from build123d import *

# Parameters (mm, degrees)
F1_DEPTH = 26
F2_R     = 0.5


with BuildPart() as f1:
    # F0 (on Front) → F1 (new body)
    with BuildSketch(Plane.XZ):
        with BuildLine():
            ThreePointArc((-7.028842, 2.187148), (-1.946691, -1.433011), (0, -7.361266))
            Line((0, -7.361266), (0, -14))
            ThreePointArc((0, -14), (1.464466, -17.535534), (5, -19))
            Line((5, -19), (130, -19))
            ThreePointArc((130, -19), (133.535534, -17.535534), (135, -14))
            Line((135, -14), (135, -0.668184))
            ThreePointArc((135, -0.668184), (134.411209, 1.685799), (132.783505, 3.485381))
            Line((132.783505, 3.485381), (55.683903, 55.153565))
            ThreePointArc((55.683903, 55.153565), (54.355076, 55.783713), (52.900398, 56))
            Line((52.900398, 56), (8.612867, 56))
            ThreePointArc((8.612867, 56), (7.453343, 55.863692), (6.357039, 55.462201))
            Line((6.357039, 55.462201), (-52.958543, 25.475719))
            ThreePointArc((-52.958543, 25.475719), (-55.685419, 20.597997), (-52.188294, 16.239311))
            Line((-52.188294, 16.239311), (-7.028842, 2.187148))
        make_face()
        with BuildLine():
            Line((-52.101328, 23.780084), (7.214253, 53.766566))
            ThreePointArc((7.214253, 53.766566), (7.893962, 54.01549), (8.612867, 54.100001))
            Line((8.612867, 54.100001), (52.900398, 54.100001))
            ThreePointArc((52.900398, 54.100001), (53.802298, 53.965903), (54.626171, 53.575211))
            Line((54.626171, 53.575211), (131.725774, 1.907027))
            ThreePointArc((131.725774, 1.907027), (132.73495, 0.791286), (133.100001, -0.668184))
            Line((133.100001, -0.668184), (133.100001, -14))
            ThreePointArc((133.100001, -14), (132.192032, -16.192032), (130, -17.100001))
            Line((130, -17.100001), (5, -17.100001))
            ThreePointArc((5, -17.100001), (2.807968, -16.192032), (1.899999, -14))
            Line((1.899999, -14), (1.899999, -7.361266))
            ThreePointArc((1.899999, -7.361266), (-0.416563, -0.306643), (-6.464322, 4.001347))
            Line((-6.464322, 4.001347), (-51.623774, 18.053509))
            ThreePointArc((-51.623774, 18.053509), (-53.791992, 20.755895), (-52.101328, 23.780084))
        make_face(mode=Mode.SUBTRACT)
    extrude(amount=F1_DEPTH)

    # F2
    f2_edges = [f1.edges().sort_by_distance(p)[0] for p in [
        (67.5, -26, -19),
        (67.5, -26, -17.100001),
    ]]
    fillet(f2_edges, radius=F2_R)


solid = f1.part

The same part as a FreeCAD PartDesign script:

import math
import FreeCAD as App
import Part
import Sketcher


def edges_at(feature, points):
    """Names of the edges that pass closest to the given points."""
    edges = feature.Shape.Edges
    near = lambda p: min(range(len(edges)), key=lambda i: edges[i].distToShape(Part.Vertex(*p))[0])
    return sorted({f"Edge{near(p) + 1}" for p in points})

doc = App.newDocument("Part")
body = doc.addObject("PartDesign::Body", "Body")

sketch1 = body.newObject("Sketcher::SketchObject", "Sketch")
sketch1.AttachmentSupport = (doc.getObject("XZ_Plane"), [""])
sketch1.MapMode = "FlatFace"
sketch1.addGeometry([
    Part.ArcOfCircle(Part.Circle(App.Vector(-10, -7.361267, 0), App.Vector(0, 0, 1), 10), math.radians(0.000003), math.radians(72.715546)),
    Part.LineSegment(App.Vector(0, -7.361266, 0), App.Vector(0, -14, 0)),
    Part.ArcOfCircle(Part.Circle(App.Vector(5, -14, 0), App.Vector(0, 0, 1), 5), math.radians(179.999996), math.radians(270.000004)),
    Part.LineSegment(App.Vector(5, -19, 0), App.Vector(130, -19, 0)),
    Part.ArcOfCircle(Part.Circle(App.Vector(130, -14, 0), App.Vector(0, 0, 1), 5), math.radians(-90.000004), math.radians(0.000004)),
    Part.LineSegment(App.Vector(135, -14, 0), App.Vector(135, -0.668184, 0)),
    Part.ArcOfCircle(Part.Circle(App.Vector(130, -0.668184, 0), App.Vector(0, 0, 1), 5), math.radians(-0.000001), math.radians(56.172042)),
    Part.LineSegment(App.Vector(132.783505, 3.485381, 0), App.Vector(55.683903, 55.153565, 0)),
    Part.ArcOfCircle(Part.Circle(App.Vector(52.900396, 50.999993, 0), App.Vector(0, 0, 1), 5.000007), math.radians(56.172074), math.radians(89.999981)),
    Part.LineSegment(App.Vector(52.900398, 56, 0), App.Vector(8.612867, 56, 0)),
    Part.ArcOfCircle(Part.Circle(App.Vector(8.61287, 50.999989, 0), App.Vector(0, 0, 1), 5.000011), math.radians(90.000036), math.radians(116.818469)),
    Part.LineSegment(App.Vector(6.357039, 55.462201, 0), App.Vector(-52.958543, 25.475719, 0)),
    Part.ArcOfCircle(Part.Circle(App.Vector(-50.702715, 21.013518, 0), App.Vector(0, 0, 1), 5), math.radians(116.818495), math.radians(252.715544)),
    Part.LineSegment(App.Vector(-52.188294, 16.239311, 0), App.Vector(-7.028842, 2.187148, 0)),
    Part.ArcOfCircle(Part.Circle(App.Vector(-50.702714, 21.013518, 0), App.Vector(0, 0, 1), 3.100001), math.radians(116.818488), math.radians(252.71554)),
    Part.LineSegment(App.Vector(-52.101328, 23.780084, 0), App.Vector(7.214253, 53.766566, 0)),
    Part.ArcOfCircle(Part.Circle(App.Vector(8.61287, 50.999982, 0), App.Vector(0, 0, 1), 3.100019), math.radians(90.000062), math.radians(116.818401)),
    Part.LineSegment(App.Vector(8.612867, 54.100001, 0), App.Vector(52.900398, 54.100001, 0)),
    Part.ArcOfCircle(Part.Circle(App.Vector(52.900396, 50.999997, 0), App.Vector(0, 0, 1), 3.100004), math.radians(56.172064), math.radians(89.999971)),
    Part.LineSegment(App.Vector(54.626171, 53.575211, 0), App.Vector(131.725774, 1.907027, 0)),
    Part.ArcOfCircle(Part.Circle(App.Vector(129.999997, -0.668186, 0), App.Vector(0, 0, 1), 3.100004), math.radians(0.000028), math.radians(56.172003)),
    Part.LineSegment(App.Vector(133.100001, -0.668184, 0), App.Vector(133.100001, -14, 0)),
    Part.ArcOfCircle(Part.Circle(App.Vector(130.000001, -14.000001, 0), App.Vector(0, 0, 1), 3.1), math.radians(-90.000017), math.radians(0.000017)),
    Part.LineSegment(App.Vector(130, -17.100001, 0), App.Vector(5, -17.100001, 0)),
    Part.ArcOfCircle(Part.Circle(App.Vector(4.999999, -14.000001, 0), App.Vector(0, 0, 1), 3.1), math.radians(179.999983), math.radians(270.000017)),
    Part.LineSegment(App.Vector(1.899999, -14, 0), App.Vector(1.899999, -7.361266, 0)),
    Part.ArcOfCircle(Part.Circle(App.Vector(-10.000003, -7.361267, 0), App.Vector(0, 0, 1), 11.900002), math.radians(0.000006), math.radians(72.715535)),
    Part.LineSegment(App.Vector(-6.464322, 4.001347, 0), App.Vector(-51.623774, 18.053509, 0)),
], False)
sketch1.addConstraint([
    Sketcher.Constraint("Coincident", 0, 1, 1, 1),
    Sketcher.Constraint("Coincident", 1, 2, 2, 1),
    Sketcher.Constraint("Coincident", 2, 2, 3, 1),
    Sketcher.Constraint("Coincident", 3, 2, 4, 1),
    Sketcher.Constraint("Coincident", 4, 2, 5, 1),
    Sketcher.Constraint("Coincident", 5, 2, 6, 1),
    Sketcher.Constraint("Coincident", 6, 2, 7, 1),
    Sketcher.Constraint("Coincident", 7, 2, 8, 1),
    Sketcher.Constraint("Coincident", 8, 2, 9, 1),
    Sketcher.Constraint("Coincident", 9, 2, 10, 1),
    Sketcher.Constraint("Coincident", 10, 2, 11, 1),
    Sketcher.Constraint("Coincident", 11, 2, 12, 1),
    Sketcher.Constraint("Coincident", 12, 2, 13, 1),
    Sketcher.Constraint("Coincident", 13, 2, 0, 2),
    Sketcher.Constraint("Coincident", 14, 1, 15, 1),
    Sketcher.Constraint("Coincident", 15, 2, 16, 2),
    Sketcher.Constraint("Coincident", 16, 1, 17, 1),
    Sketcher.Constraint("Coincident", 17, 2, 18, 2),
    Sketcher.Constraint("Coincident", 18, 1, 19, 1),
    Sketcher.Constraint("Coincident", 19, 2, 20, 2),
    Sketcher.Constraint("Coincident", 20, 1, 21, 1),
    Sketcher.Constraint("Coincident", 21, 2, 22, 2),
    Sketcher.Constraint("Coincident", 22, 1, 23, 1),
    Sketcher.Constraint("Coincident", 23, 2, 24, 2),
    Sketcher.Constraint("Coincident", 24, 1, 25, 1),
    Sketcher.Constraint("Coincident", 25, 2, 26, 1),
    Sketcher.Constraint("Coincident", 26, 2, 27, 1),
    Sketcher.Constraint("Coincident", 27, 2, 14, 2),
    Sketcher.Constraint("Vertical", 1),
    Sketcher.Constraint("Horizontal", 3),
    Sketcher.Constraint("Vertical", 5),
    Sketcher.Constraint("Horizontal", 9),
    Sketcher.Constraint("Horizontal", 17),
    Sketcher.Constraint("Vertical", 21),
    Sketcher.Constraint("Horizontal", 23),
    Sketcher.Constraint("Vertical", 25),
    Sketcher.Constraint("Coincident", 14, 3, 12, 3),
    Sketcher.Constraint("Coincident", 16, 3, 10, 3),
    Sketcher.Constraint("Coincident", 18, 3, 8, 3),
    Sketcher.Constraint("Coincident", 20, 3, 6, 3),
    Sketcher.Constraint("Coincident", 22, 3, 4, 3),
    Sketcher.Constraint("Coincident", 24, 3, 2, 3),
    Sketcher.Constraint("Coincident", 26, 3, 0, 3),
    Sketcher.Constraint("PointOnObject", 0, 1, -2),
    Sketcher.Constraint("Radius", 0, 10.0),
    Sketcher.Constraint("Radius", 2, 5.0),
    Sketcher.Constraint("Radius", 4, 5.0),
    Sketcher.Constraint("Radius", 6, 5.0),
    Sketcher.Constraint("Radius", 12, 5.0),
    Sketcher.Constraint("Radius", 14, 3.100001),
    Sketcher.Constraint("Radius", 22, 3.1),
    Sketcher.Constraint("DistanceX", 3, 1, 3, 2, 125.0),
    Sketcher.Constraint("DistanceX", 23, 2, 23, 1, 125.0),
    Sketcher.Constraint("DistanceY", 2, 3, -1, 1, 14.0),
    Sketcher.Constraint("DistanceX", -1, 1, 4, 3, 130.0),
    Sketcher.Constraint("DistanceY", 1, 2, -1, 1, 14.0),
    Sketcher.Constraint("DistanceX", -1, 1, 2, 2, 5.0),
    Sketcher.Constraint("DistanceY", 4, 2, -1, 1, 14.0),
    Sketcher.Constraint("DistanceY", -1, 1, 8, 2, 56.0),
    Sketcher.Constraint("DistanceY", 21, 2, -1, 1, 14.0),
    Sketcher.Constraint("DistanceX", -1, 1, 22, 1, 130.0),
    Sketcher.Constraint("DistanceY", 24, 1, -1, 1, 14.0),
    Sketcher.Constraint("DistanceY", -1, 1, 16, 1, 54.100001),
    Sketcher.Constraint("Radius", 10, 5.000011),
    Sketcher.Constraint("Radius", 8, 5.000007),
    Sketcher.Constraint("DistanceX", 9, 2, 9, 1, 44.287531),
    Sketcher.Constraint("DistanceX", 17, 1, 17, 2, 44.287531),
    Sketcher.Constraint("DistanceX", -1, 1, 8, 2, 52.900398),
    Sketcher.Constraint("DistanceY", -1, 1, 10, 2, 55.462201),
    Sketcher.Constraint("DistanceX", -1, 1, 17, 2, 52.900398),
    Sketcher.Constraint("DistanceY", 6, 3, 12, 3, 21.681702),
    Sketcher.Constraint("DistanceX", 8, 3, 20, 3, 77.0996),
    Sketcher.Constraint("DistanceY", 14, 3, 11, 2, 4.462201),
    Sketcher.Constraint("DistanceY", 13, 2, 26, 2, 1.814199),
    Sketcher.Constraint("DistanceY", 12, 2, 27, 2, 1.814198),
    Sketcher.Constraint("Distance", 15, 66.464481),
    Sketcher.Constraint("DistanceY", 1, 2, 1, 1, 6.638734),
    Sketcher.Constraint("DistanceY", 5, 1, 5, 2, 13.331816),
    Sketcher.Constraint("DistanceY", 21, 2, 21, 1, 13.331816),
    Sketcher.Constraint("DistanceY", 25, 1, 25, 2, 6.638734),
    Sketcher.Constraint("DistanceX", -1, 1, 10, 3, 8.61287),
    Sketcher.Constraint("DistanceY", -1, 1, 12, 3, 21.013518),
    Sketcher.Constraint("DistanceY", -1, 1, 6, 2, 3.485381),
    Sketcher.Constraint("DistanceY", -1, 1, 12, 2, 16.239311),
    Sketcher.Constraint("DistanceY", -1, 1, 13, 2, 2.187148),
    Sketcher.Constraint("DistanceX", -1, 1, 18, 1, 54.626171),
    Sketcher.Constraint("DistanceY", 0, 3, 8, 3, 58.36126),
    Sketcher.Constraint("DistanceX", 12, 3, 8, 3, 103.603111),
    Sketcher.Constraint("DistanceY", 18, 3, 7, 2, 4.153568),
    Sketcher.Constraint("DistanceX", 19, 2, 6, 2, 1.057731),
    Sketcher.Constraint("DistanceX", 14, 1, -1, 1, 52.101328),
])
pad1 = body.newObject("PartDesign::Pad", "Pad")
pad1.Profile = sketch1
pad1.Length = 26
doc.recompute()

fillet = body.newObject("PartDesign::Fillet", "Fillet")
fillet.Base = (pad1, edges_at(pad1, [(67.5, -26, -19), (67.5, -26, -17.1)]))
fillet.Radius = 0.5

doc.recompute()
